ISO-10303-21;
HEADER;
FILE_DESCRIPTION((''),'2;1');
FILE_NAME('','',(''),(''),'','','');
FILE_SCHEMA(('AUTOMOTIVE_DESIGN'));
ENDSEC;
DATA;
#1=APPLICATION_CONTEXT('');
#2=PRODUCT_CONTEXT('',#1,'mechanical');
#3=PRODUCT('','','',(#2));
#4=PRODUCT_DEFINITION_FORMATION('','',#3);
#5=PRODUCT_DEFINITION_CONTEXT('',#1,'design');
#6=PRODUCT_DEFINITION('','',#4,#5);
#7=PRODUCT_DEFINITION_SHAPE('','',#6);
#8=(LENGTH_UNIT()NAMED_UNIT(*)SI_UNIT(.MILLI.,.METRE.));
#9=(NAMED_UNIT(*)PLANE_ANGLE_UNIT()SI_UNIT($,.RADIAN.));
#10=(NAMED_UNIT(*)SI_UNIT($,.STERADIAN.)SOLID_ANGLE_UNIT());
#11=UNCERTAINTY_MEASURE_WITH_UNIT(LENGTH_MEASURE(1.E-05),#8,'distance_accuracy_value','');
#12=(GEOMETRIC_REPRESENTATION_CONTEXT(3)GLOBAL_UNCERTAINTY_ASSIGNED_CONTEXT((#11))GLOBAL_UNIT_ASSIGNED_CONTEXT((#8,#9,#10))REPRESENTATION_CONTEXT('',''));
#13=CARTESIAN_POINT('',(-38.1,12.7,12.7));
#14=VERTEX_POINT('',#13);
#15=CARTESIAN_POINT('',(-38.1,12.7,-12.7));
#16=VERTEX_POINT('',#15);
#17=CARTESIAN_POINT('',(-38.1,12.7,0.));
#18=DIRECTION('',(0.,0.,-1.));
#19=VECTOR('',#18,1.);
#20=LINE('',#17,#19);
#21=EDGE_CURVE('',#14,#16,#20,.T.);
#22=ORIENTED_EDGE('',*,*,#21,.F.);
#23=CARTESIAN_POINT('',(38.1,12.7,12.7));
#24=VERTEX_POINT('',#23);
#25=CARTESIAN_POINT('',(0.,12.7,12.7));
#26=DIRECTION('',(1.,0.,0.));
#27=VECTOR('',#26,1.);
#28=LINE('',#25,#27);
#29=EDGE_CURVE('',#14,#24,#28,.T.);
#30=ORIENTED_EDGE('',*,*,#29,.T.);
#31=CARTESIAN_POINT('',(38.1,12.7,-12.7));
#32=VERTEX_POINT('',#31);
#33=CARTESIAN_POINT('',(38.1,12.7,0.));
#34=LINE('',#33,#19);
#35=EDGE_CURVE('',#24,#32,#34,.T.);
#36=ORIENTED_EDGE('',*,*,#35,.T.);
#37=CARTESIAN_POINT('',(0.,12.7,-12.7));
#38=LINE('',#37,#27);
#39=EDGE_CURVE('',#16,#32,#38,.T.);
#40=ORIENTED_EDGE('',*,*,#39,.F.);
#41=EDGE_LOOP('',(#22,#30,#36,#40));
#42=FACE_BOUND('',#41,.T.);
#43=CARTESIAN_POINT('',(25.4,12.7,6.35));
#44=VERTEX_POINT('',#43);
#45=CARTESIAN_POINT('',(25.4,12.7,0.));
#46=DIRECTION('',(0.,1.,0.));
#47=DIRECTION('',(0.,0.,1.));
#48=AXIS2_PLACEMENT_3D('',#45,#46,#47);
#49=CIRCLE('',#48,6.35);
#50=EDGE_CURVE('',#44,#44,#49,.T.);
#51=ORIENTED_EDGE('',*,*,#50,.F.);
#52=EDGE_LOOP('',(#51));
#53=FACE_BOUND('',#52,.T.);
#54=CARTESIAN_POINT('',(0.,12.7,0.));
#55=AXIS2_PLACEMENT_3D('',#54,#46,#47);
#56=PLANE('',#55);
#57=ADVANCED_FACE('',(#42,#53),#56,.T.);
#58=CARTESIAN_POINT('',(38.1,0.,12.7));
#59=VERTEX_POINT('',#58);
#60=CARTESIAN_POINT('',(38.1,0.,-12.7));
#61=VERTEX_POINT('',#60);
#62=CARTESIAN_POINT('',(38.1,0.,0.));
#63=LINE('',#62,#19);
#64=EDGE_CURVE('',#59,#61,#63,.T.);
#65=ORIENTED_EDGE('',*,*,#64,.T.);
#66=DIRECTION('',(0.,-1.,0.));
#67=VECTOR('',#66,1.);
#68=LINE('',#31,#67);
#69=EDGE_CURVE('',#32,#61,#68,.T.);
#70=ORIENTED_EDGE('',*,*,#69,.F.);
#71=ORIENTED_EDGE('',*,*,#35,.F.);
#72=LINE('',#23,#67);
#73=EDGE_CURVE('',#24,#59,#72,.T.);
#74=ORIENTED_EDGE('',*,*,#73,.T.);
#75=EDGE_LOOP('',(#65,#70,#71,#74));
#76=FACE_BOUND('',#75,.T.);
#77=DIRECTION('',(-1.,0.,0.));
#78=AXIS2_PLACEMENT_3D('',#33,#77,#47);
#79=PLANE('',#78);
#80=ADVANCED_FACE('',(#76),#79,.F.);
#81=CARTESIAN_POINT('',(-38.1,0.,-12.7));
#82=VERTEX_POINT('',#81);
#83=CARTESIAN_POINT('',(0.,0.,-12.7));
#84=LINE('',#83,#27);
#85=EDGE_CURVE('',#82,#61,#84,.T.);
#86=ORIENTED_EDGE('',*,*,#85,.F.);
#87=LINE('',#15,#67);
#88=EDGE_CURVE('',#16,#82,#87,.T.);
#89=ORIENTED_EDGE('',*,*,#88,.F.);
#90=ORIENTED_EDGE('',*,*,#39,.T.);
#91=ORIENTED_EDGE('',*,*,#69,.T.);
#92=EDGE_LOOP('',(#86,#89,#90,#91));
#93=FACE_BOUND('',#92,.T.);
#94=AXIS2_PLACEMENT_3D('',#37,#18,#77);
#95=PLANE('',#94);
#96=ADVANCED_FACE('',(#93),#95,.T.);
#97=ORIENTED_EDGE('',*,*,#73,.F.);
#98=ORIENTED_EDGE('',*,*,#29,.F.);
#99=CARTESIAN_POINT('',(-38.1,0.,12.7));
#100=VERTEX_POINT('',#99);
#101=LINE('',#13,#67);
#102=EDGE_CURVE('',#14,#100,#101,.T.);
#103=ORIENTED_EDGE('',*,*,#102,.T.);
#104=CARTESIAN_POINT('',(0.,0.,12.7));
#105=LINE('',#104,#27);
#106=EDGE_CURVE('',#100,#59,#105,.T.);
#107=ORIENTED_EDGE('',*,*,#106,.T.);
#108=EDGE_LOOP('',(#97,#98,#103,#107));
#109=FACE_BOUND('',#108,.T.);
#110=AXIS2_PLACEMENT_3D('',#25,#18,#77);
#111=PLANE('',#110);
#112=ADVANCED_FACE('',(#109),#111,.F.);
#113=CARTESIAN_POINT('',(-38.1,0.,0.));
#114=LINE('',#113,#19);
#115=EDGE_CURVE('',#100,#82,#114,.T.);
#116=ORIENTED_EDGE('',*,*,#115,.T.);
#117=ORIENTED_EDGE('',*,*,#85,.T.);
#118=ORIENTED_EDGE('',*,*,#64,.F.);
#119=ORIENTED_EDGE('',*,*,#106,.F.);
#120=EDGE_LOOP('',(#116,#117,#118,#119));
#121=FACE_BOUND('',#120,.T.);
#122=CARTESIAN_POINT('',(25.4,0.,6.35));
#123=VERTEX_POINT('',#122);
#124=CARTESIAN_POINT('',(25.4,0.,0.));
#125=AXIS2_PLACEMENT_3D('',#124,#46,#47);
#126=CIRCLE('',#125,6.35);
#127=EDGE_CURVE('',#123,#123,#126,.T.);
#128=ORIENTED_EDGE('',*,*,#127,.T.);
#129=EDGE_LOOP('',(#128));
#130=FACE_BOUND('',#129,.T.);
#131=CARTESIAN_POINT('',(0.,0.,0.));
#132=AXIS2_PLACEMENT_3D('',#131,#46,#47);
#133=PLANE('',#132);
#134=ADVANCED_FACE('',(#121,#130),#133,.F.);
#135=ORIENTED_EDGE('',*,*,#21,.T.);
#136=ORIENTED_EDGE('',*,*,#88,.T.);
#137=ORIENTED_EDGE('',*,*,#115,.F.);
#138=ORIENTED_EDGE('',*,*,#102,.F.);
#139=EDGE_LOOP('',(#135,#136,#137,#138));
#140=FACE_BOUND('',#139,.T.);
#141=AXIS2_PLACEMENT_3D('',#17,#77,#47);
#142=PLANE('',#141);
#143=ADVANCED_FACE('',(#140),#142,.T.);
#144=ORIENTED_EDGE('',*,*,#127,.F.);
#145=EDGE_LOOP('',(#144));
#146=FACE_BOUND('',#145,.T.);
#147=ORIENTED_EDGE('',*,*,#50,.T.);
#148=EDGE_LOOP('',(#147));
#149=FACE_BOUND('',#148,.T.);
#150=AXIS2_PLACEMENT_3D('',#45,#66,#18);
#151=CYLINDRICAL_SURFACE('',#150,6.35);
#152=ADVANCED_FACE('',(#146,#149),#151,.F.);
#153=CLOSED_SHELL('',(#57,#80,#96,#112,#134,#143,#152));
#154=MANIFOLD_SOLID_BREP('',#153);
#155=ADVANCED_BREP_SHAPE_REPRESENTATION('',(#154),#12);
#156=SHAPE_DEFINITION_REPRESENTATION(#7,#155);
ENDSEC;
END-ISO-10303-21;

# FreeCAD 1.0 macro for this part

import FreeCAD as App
import Part
import Sketcher
Q = App.Units.Quantity


def add_polygon(sketch, points):
    """Adds a closed chain of lines whose ends are joined by coincident constraints."""
    first, n = sketch.GeometryCount, len(points)
    for a, b in zip(points, points[1:] + points[:1]):
        sketch.addGeometry(Part.LineSegment(App.Vector(*a, 0), App.Vector(*b, 0)), False)
    for i in range(n):
        sketch.addConstraint(Sketcher.Constraint("Coincident", first + i, 2, first + (i + 1) % n, 1))

doc = App.newDocument("Part")
body = doc.addObject("PartDesign::Body", "Body")

# Sketch on XZ plane
sketch1 = body.newObject("Sketcher::SketchObject", "Sketch")
sketch1.AttachmentSupport = (doc.getObject("XZ_Plane"), [""])
sketch1.MapMode = "FlatFace"
add_polygon(sketch1, [(-38, -13), (-38, 13), (38, 13), (38, -13)])  # lines 0-3
sketch1.addGeometry(Part.Circle(App.Vector(25, 0, 0), App.Vector(0, 0, 1), 6), False)  # 4
sketch1.addConstraint([
    Sketcher.Constraint("Vertical", 0),
    Sketcher.Constraint("Horizontal", 1),
    Sketcher.Constraint("Vertical", 2),
    Sketcher.Constraint("Horizontal", 3),
    Sketcher.Constraint("Symmetric", 0, 2, 2, 2, -1, 1),
    Sketcher.Constraint("PointOnObject", 4, 3, -1),
    Sketcher.Constraint("Diameter", 4, Q("0.5 in")),
    Sketcher.Constraint("DistanceX", 1, 1, 1, 2, Q("3 in")),
    Sketcher.Constraint("DistanceY", 0, 1, 0, 2, Q("1 in")),
    Sketcher.Constraint("DistanceX", -1, 1, 4, 3, Q("1 in")),
])
pad1 = body.newObject("PartDesign::Pad", "Pad")
pad1.Profile = sketch1
pad1.Length = Q("0.5 in")
pad1.Reversed = True

doc.recompute()
